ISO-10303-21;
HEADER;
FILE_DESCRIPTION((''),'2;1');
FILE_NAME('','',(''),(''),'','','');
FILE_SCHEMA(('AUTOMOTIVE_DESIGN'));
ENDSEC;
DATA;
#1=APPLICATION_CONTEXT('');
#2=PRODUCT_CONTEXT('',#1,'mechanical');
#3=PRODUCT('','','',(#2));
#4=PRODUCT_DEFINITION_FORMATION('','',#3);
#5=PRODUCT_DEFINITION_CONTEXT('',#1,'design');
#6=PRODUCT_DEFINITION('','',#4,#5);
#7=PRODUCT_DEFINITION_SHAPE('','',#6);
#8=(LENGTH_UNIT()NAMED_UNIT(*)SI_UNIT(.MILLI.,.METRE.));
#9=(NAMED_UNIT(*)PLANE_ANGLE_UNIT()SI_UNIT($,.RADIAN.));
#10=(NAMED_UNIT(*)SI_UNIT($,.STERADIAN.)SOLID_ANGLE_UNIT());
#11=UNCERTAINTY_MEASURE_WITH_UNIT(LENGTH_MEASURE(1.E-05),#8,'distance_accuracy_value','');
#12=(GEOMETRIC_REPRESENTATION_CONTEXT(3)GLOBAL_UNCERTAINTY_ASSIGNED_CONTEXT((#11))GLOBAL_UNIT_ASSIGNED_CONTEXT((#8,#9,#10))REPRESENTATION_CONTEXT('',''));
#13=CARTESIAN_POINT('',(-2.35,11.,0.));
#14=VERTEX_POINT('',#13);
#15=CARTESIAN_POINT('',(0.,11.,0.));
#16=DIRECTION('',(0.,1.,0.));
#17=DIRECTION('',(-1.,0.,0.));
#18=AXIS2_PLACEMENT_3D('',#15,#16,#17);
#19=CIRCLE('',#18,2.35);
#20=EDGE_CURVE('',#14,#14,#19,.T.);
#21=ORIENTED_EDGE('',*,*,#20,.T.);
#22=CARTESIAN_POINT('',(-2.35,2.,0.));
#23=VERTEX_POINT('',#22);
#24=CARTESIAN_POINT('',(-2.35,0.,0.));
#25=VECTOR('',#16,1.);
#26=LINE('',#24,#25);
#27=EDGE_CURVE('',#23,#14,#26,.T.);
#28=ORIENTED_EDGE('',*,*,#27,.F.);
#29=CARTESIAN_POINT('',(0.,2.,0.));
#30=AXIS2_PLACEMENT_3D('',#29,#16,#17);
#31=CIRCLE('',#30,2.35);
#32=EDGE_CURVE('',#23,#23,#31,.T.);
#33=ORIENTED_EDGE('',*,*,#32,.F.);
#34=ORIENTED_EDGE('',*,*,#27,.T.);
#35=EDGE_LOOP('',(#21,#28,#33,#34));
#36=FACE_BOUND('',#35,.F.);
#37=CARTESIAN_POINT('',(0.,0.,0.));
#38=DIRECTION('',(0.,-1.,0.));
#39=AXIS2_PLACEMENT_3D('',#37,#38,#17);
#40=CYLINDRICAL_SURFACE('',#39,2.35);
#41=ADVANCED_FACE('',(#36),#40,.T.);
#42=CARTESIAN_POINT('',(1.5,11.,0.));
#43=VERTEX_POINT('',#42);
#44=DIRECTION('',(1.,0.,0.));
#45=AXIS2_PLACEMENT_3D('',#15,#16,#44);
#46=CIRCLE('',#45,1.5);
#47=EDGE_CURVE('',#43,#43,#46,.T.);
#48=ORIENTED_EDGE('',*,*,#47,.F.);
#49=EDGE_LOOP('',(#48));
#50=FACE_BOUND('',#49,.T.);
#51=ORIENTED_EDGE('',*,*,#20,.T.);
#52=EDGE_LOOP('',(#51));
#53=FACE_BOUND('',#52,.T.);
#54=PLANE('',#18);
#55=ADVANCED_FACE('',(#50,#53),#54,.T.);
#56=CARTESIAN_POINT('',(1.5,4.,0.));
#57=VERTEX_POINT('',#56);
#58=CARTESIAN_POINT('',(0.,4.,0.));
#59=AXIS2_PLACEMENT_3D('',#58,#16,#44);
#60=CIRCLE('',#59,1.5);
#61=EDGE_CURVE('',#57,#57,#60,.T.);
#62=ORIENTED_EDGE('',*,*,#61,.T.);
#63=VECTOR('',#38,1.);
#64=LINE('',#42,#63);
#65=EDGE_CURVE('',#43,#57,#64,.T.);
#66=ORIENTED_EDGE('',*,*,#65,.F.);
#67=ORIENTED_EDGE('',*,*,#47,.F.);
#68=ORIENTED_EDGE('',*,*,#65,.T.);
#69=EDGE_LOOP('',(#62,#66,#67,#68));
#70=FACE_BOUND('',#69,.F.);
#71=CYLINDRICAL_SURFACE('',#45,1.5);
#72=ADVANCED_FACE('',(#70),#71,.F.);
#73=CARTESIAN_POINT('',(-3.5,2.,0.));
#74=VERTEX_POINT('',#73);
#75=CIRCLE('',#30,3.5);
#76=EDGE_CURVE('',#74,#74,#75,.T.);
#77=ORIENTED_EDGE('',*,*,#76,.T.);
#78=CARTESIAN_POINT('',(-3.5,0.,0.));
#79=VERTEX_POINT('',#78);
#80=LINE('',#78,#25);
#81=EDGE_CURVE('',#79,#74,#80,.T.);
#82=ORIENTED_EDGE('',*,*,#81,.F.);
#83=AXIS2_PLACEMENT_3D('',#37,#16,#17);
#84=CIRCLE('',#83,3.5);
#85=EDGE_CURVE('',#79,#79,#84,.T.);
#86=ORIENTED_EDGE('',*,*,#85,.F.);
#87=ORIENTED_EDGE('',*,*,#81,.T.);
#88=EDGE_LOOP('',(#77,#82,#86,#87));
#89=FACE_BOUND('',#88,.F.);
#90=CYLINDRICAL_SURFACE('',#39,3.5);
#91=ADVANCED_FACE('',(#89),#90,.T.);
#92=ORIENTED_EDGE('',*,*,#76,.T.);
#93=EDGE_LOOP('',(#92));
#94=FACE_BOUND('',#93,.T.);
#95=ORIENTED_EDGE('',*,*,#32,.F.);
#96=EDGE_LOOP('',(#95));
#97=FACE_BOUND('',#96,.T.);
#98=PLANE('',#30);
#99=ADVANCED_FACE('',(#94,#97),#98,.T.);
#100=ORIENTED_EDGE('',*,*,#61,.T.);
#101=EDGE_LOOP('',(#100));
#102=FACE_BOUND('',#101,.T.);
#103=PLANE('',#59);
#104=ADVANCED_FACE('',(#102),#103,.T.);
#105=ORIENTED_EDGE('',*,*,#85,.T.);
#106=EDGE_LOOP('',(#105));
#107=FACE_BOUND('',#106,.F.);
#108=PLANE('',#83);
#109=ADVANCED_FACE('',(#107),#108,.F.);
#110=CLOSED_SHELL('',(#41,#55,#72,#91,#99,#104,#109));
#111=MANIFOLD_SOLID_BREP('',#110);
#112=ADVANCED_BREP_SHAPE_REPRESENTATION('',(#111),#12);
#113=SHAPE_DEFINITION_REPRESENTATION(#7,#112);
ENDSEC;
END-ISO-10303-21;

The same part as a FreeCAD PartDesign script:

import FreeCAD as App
import Part
import Sketcher
Q = App.Units.Quantity

doc = App.newDocument("Part")
body = doc.addObject("PartDesign::Body", "Body")

sketch1 = body.newObject("Sketcher::SketchObject", "Sketch")
sketch1.AttachmentSupport = (doc.getObject("XZ_Plane"), [""])
sketch1.MapMode = "FlatFace"
sketch1.addGeometry(Part.Circle(App.Vector(0, 0, 0), App.Vector(0, 0, 1), 2.35), False)
sketch1.addConstraint([
    Sketcher.Constraint("Coincident", 0, 3, -1, 1),
    Sketcher.Constraint("Diameter", 0, Q("4.7 mm")),
])
pad1 = body.newObject("PartDesign::Pad", "Pad")
pad1.Profile = sketch1
pad1.Length = 11
pad1.Reversed = True

sketch2 = body.newObject("Sketcher::SketchObject", "Sketch001")
sketch2.AttachmentSupport = (doc.getObject("XZ_Plane"), [""])
sketch2.MapMode = "FlatFace"
sketch2.addGeometry([
    Part.Circle(App.Vector(0, 0, 0), App.Vector(0, 0, 1), 3.5),
    Part.Circle(App.Vector(0, 0, 0), App.Vector(0, 0, 1), 2.35),
], False)
sketch2.addConstraint([
    Sketcher.Constraint("Coincident", 0, 3, -1, 1),
    Sketcher.Constraint("Coincident", 1, 3, -1, 1),
    Sketcher.Constraint("Diameter", 0, Q("7 mm")),
    Sketcher.Constraint("Diameter", 1, Q("4.7 mm")),
])
pad2 = body.newObject("PartDesign::Pad", "Pad001")
pad2.Profile = sketch2
pad2.Length = 2
pad2.Reversed = True

sketch3 = body.newObject("Sketcher::SketchObject", "Sketch002")
sketch3.AttachmentSupport = (doc.getObject("XZ_Plane"), [""])
sketch3.MapMode = "FlatFace"
sketch3.AttachmentOffset = App.Placement(App.Vector(0, 0, -11), App.Rotation())
sketch3.addGeometry(Part.Circle(App.Vector(0, 0, 0), App.Vector(0, 0, 1), 1.5), False)
sketch3.addConstraint([
    Sketcher.Constraint("Coincident", 0, 3, -1, 1),
    Sketcher.Constraint("Diameter", 0, Q("3 mm")),
])
pocket1 = body.newObject("PartDesign::Pocket", "Pocket")
pocket1.Profile = sketch3
pocket1.Length = 7
pocket1.Reversed = True

doc.recompute()
